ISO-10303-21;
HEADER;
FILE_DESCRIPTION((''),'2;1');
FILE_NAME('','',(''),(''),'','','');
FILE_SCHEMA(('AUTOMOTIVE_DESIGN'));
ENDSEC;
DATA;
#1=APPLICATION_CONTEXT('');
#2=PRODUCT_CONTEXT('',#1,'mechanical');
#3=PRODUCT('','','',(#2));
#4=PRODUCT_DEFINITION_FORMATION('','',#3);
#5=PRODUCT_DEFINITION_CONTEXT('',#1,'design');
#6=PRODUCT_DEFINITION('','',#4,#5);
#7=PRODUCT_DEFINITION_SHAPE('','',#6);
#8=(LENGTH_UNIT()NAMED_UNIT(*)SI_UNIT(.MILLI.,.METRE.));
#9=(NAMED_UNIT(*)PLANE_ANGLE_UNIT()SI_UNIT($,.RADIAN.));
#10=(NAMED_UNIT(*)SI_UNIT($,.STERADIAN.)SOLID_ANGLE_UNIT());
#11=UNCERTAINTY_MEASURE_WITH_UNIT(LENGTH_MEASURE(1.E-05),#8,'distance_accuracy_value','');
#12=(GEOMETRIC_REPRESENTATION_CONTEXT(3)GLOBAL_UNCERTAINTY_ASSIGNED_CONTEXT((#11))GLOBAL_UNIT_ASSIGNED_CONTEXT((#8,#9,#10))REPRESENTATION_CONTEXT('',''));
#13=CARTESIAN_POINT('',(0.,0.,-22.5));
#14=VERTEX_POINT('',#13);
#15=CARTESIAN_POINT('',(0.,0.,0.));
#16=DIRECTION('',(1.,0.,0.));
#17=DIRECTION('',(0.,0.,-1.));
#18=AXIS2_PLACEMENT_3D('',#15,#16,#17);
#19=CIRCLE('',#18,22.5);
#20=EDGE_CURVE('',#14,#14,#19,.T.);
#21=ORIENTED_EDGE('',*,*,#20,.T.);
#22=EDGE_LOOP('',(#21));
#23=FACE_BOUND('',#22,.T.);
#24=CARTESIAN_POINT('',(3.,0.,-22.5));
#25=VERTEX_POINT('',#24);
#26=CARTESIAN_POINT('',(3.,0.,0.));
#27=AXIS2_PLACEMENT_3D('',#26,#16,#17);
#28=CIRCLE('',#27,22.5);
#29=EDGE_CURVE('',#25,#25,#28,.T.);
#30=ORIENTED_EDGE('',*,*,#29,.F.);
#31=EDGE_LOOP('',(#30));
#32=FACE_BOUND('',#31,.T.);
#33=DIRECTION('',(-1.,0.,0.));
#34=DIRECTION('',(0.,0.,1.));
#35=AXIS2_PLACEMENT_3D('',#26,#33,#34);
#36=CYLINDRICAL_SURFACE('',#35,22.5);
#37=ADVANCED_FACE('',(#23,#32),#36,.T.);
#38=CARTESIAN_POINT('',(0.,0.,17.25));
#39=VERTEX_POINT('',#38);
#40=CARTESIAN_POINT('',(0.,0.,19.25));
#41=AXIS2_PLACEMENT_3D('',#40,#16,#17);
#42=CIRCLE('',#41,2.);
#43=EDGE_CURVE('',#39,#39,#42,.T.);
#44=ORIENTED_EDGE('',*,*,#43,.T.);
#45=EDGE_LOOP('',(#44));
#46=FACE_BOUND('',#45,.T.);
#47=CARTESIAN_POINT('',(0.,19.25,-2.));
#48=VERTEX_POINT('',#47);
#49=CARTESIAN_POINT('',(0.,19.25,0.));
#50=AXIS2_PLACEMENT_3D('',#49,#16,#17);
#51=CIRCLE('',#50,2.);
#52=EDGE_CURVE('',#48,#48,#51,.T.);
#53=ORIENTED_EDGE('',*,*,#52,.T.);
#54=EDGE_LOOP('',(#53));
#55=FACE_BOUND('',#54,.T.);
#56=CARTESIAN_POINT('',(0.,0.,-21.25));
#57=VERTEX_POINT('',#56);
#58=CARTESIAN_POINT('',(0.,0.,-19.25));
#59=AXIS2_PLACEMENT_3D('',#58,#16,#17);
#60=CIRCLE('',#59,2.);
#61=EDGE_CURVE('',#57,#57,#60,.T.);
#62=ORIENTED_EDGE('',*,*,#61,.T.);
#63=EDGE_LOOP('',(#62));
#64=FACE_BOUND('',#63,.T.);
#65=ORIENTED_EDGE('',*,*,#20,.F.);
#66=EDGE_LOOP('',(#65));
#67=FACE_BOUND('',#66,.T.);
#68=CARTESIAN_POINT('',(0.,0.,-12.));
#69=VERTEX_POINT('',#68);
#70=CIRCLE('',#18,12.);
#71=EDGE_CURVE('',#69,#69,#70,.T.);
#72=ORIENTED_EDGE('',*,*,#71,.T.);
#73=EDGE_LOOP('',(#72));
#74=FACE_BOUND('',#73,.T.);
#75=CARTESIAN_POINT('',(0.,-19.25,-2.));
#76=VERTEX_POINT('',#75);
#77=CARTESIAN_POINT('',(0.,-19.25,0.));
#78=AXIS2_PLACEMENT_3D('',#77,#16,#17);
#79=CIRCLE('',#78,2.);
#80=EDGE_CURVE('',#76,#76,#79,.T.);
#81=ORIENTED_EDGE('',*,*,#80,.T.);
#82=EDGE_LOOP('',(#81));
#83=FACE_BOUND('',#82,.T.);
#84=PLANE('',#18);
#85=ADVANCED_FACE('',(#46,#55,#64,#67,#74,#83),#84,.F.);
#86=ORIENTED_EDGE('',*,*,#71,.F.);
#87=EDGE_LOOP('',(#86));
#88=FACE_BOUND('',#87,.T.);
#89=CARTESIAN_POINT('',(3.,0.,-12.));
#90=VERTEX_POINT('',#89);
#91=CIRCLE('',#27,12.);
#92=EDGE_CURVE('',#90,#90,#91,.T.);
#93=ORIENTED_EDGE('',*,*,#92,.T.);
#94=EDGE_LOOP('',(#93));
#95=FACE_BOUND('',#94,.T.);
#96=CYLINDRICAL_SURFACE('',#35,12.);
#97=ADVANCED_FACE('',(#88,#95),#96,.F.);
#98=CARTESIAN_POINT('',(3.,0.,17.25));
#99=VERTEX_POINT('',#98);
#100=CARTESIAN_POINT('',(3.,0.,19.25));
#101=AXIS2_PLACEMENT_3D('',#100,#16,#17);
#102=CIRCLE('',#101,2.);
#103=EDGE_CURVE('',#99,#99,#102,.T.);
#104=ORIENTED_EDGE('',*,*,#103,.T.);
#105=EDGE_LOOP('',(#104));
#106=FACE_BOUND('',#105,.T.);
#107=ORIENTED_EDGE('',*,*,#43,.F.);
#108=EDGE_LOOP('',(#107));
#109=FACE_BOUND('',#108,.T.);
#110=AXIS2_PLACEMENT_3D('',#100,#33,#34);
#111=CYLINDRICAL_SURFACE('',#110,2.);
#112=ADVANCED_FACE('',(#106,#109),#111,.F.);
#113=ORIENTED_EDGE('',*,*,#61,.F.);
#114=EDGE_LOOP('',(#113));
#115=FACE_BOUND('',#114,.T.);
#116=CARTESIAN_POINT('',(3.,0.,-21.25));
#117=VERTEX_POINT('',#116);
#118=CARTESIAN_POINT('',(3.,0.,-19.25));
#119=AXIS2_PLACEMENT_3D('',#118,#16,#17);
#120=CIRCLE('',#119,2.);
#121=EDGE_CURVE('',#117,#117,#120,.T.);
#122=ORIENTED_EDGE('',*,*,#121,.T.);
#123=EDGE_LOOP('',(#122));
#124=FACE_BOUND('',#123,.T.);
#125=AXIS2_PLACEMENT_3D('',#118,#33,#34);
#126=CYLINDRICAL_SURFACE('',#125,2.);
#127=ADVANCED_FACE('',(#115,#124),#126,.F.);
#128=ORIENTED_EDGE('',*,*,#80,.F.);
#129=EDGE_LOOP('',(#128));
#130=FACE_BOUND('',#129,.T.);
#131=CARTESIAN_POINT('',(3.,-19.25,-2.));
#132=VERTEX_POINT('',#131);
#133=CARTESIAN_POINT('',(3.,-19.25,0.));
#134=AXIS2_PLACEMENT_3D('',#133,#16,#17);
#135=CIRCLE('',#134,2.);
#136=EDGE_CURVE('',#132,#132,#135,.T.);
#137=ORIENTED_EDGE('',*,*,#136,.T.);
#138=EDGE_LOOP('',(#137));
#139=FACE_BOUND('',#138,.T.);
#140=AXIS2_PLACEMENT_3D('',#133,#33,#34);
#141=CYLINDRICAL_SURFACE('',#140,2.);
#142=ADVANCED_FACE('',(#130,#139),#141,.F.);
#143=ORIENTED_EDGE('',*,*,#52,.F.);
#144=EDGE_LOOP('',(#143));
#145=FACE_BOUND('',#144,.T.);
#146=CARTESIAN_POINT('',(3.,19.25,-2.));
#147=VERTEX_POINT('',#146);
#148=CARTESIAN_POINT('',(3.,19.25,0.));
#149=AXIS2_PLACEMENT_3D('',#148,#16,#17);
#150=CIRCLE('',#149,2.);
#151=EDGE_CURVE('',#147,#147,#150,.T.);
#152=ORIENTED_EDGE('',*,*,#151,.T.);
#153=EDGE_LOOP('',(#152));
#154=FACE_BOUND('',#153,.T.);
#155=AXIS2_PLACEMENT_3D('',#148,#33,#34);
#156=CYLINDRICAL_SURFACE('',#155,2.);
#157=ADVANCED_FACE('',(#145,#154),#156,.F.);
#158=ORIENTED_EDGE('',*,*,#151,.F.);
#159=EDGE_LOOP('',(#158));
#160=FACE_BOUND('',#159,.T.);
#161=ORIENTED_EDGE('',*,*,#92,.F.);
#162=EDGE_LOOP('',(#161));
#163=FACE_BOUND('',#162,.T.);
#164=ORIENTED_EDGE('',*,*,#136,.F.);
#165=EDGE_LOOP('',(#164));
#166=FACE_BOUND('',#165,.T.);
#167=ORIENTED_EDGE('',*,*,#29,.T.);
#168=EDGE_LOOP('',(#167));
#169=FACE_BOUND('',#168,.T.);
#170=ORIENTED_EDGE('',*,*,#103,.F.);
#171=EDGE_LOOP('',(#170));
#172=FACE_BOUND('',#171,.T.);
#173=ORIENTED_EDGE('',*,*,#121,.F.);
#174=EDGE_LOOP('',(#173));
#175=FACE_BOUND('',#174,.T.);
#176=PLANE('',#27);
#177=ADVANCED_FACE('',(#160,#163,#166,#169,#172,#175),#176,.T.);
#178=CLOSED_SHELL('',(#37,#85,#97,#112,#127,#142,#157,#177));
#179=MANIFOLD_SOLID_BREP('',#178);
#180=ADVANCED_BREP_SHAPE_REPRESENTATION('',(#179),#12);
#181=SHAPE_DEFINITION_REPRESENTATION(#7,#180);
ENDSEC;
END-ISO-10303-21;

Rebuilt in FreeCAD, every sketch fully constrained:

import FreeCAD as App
import Part
import Sketcher

doc = App.newDocument("Part")
body = doc.addObject("PartDesign::Body", "Body")

sketch1 = body.newObject("Sketcher::SketchObject", "Sketch")
sketch1.AttachmentSupport = (doc.getObject("YZ_Plane"), [""])
sketch1.MapMode = "FlatFace"
sketch1.addGeometry(Part.Circle(App.Vector(0, 0, 0), App.Vector(0, 0, 1), 22.5), False)
sketch1.addGeometry(Part.Circle(App.Vector(-19.2, 0, 0), App.Vector(0, 0, 1), 2), False)
sketch1.addGeometry(Part.Circle(App.Vector(0, 19.2, 0), App.Vector(0, 0, 1), 2), False)
sketch1.addGeometry(Part.Circle(App.Vector(0, 0, 0), App.Vector(0, 0, 1), 12), False)
sketch1.addGeometry(Part.Circle(App.Vector(0, -19.2, 0), App.Vector(0, 0, 1), 2), False)
sketch1.addGeometry(Part.Circle(App.Vector(19.2, 0, 0), App.Vector(0, 0, 1), 2), False)
sketch1.addConstraint(Sketcher.Constraint("Coincident", 0, 3, -1, 1))
sketch1.addConstraint(Sketcher.Constraint("Coincident", 3, 3, -1, 1))
sketch1.addConstraint(Sketcher.Constraint("Equal", 1, 2))
sketch1.addConstraint(Sketcher.Constraint("Equal", 2, 4))
sketch1.addConstraint(Sketcher.Constraint("Equal", 4, 5))
sketch1.addConstraint(Sketcher.Constraint("Symmetric", 2, 3, 4, 3, -1, 1))
sketch1.addConstraint(Sketcher.Constraint("Symmetric", 1, 3, 5, 3, -1, 1))
sketch1.addConstraint(Sketcher.Constraint("PointOnObject", 1, 3, -1))
sketch1.addConstraint(Sketcher.Constraint("PointOnObject", 2, 3, -2))
sketch1.addConstraint(Sketcher.Constraint("Diameter", 0, 45.0))
sketch1.addConstraint(Sketcher.Constraint("Diameter", 1, 4.0))
sketch1.addConstraint(Sketcher.Constraint("Diameter", 3, 24.0))
sketch1.addConstraint(Sketcher.Constraint("DistanceY", 4, 3, 2, 3, 38.5))
sketch1.addConstraint(Sketcher.Constraint("DistanceX", 1, 3, 5, 3, 38.5))
pad1 = body.newObject("PartDesign::Pad", "Pad")
pad1.Profile = sketch1
pad1.Length = 3

doc.recompute()
